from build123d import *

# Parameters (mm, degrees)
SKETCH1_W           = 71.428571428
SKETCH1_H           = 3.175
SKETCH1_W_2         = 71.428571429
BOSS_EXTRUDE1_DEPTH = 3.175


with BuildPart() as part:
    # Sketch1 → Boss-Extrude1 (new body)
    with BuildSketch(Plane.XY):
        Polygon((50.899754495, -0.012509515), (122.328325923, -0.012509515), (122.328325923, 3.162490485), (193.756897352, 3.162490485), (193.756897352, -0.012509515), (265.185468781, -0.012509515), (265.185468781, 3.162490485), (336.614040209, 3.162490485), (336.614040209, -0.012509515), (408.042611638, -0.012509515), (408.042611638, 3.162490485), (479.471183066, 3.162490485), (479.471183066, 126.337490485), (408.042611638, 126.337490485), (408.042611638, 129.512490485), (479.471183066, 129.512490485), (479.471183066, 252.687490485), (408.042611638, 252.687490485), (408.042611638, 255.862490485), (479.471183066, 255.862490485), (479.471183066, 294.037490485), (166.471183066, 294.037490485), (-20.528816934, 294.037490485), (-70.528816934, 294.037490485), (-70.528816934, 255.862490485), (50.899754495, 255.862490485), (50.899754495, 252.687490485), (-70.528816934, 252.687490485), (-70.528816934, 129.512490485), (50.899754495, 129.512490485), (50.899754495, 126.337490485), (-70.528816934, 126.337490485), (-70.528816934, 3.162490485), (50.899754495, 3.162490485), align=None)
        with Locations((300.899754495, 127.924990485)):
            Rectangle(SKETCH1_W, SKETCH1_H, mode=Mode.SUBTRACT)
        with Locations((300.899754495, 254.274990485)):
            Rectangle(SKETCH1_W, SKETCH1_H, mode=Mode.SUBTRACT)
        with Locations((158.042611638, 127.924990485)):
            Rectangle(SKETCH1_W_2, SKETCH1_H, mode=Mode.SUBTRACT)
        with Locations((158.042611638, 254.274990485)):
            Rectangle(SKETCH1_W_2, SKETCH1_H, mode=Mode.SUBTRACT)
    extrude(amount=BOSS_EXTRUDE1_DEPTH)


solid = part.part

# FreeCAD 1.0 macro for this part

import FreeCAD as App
import Part
import Sketcher
from FreeCAD import Vector
Q = App.Units.Quantity

doc = App.newDocument("Part")
params = doc.addObject("Spreadsheet::Sheet", "Params")
for row, (alias, value) in enumerate([
    ("sketch1_width", "550 mm"),
    ("pad1_length", "3.175 mm"),
], start=1):
    params.set(f"A{row}", alias)
    params.set(f"B{row}", "=" + value)
    params.setAlias(f"B{row}", alias)

body = doc.addObject("PartDesign::Body", "Body")

# Sketch on XY plane
sketch1 = body.newObject("Sketcher::SketchObject", "Sketch")
sketch1.AttachmentSupport = (doc.getObject("XY_Plane"), [""])
sketch1.MapMode = "FlatFace"
sketch1.addGeometry([
    Part.LineSegment(Vector(50.899754, -0.01251, 0), Vector(122.328326, -0.01251, 0)),  # 0
    Part.LineSegment(Vector(122.328326, -0.01251, 0), Vector(122.328326, 3.16249, 0)),  # 1
    Part.LineSegment(Vector(122.328326, 3.16249, 0), Vector(193.756897, 3.16249, 0)),  # 2
    Part.LineSegment(Vector(193.756897, 3.16249, 0), Vector(193.756897, -0.01251, 0)),  # 3
    Part.LineSegment(Vector(193.756897, -0.01251, 0), Vector(265.185469, -0.01251, 0)),  # 4
    Part.LineSegment(Vector(265.185469, -0.01251, 0), Vector(265.185469, 3.16249, 0)),  # 5
    Part.LineSegment(Vector(265.185469, 3.16249, 0), Vector(336.61404, 3.16249, 0)),  # 6
    Part.LineSegment(Vector(336.61404, 3.16249, 0), Vector(336.61404, -0.01251, 0)),  # 7
    Part.LineSegment(Vector(336.61404, -0.01251, 0), Vector(408.042612, -0.01251, 0)),  # 8
    Part.LineSegment(Vector(408.042612, -0.01251, 0), Vector(408.042612, 3.16249, 0)),  # 9
    Part.LineSegment(Vector(408.042612, 3.16249, 0), Vector(479.471183, 3.16249, 0)),  # 10
    Part.LineSegment(Vector(479.471183, 3.16249, 0), Vector(479.471183, 126.33749, 0)),  # 11
    Part.LineSegment(Vector(479.471183, 126.33749, 0), Vector(408.042612, 126.33749, 0)),  # 12
    Part.LineSegment(Vector(408.042612, 126.33749, 0), Vector(408.042612, 129.51249, 0)),  # 13
    Part.LineSegment(Vector(408.042612, 129.51249, 0), Vector(479.471183, 129.51249, 0)),  # 14
    Part.LineSegment(Vector(479.471183, 129.51249, 0), Vector(479.471183, 252.68749, 0)),  # 15
    Part.LineSegment(Vector(479.471183, 252.68749, 0), Vector(408.042612, 252.68749, 0)),  # 16
    Part.LineSegment(Vector(408.042612, 252.68749, 0), Vector(408.042612, 255.86249, 0)),  # 17
    Part.LineSegment(Vector(408.042612, 255.86249, 0), Vector(479.471183, 255.86249, 0)),  # 18
    Part.LineSegment(Vector(479.471183, 255.86249, 0), Vector(479.471183, 294.03749, 0)),  # 19
    Part.LineSegment(Vector(479.471183, 294.03749, 0), Vector(-70.528817, 294.03749, 0)),  # 20
    Part.LineSegment(Vector(-70.528817, 294.03749, 0), Vector(-70.528817, 255.86249, 0)),  # 21
    Part.LineSegment(Vector(-70.528817, 255.86249, 0), Vector(50.899754, 255.86249, 0)),  # 22
    Part.LineSegment(Vector(50.899754, 255.86249, 0), Vector(50.899754, 252.68749, 0)),  # 23
    Part.LineSegment(Vector(50.899754, 252.68749, 0), Vector(-70.528817, 252.68749, 0)),  # 24
    Part.LineSegment(Vector(-70.528817, 252.68749, 0), Vector(-70.528817, 129.51249, 0)),  # 25
    Part.LineSegment(Vector(-70.528817, 129.51249, 0), Vector(50.899754, 129.51249, 0)),  # 26
    Part.LineSegment(Vector(50.899754, 129.51249, 0), Vector(50.899754, 126.33749, 0)),  # 27
    Part.LineSegment(Vector(50.899754, 126.33749, 0), Vector(-70.528817, 126.33749, 0)),  # 28
    Part.LineSegment(Vector(-70.528817, 126.33749, 0), Vector(-70.528817, 3.16249, 0)),  # 29
    Part.LineSegment(Vector(-70.528817, 3.16249, 0), Vector(50.899754, 3.16249, 0)),  # 30
    Part.LineSegment(Vector(50.899754, 3.16249, 0), Vector(50.899754, -0.01251, 0)),  # 31
    Part.LineSegment(Vector(193.756897, 126.33749, 0), Vector(122.328326, 126.33749, 0)),  # 32
    Part.LineSegment(Vector(122.328326, 126.33749, 0), Vector(122.328326, 129.51249, 0)),  # 33
    Part.LineSegment(Vector(122.328326, 129.51249, 0), Vector(193.756897, 129.51249, 0)),  # 34
    Part.LineSegment(Vector(193.756897, 129.51249, 0), Vector(193.756897, 126.33749, 0)),  # 35
    Part.LineSegment(Vector(336.61404, 126.33749, 0), Vector(265.185469, 126.33749, 0)),  # 36
    Part.LineSegment(Vector(265.185469, 126.33749, 0), Vector(265.185469, 129.51249, 0)),  # 37
    Part.LineSegment(Vector(265.185469, 129.51249, 0), Vector(336.61404, 129.51249, 0)),  # 38
    Part.LineSegment(Vector(336.61404, 129.51249, 0), Vector(336.61404, 126.33749, 0)),  # 39
    Part.LineSegment(Vector(193.756897, 252.68749, 0), Vector(122.328326, 252.68749, 0)),  # 40
    Part.LineSegment(Vector(122.328326, 252.68749, 0), Vector(122.328326, 255.86249, 0)),  # 41
    Part.LineSegment(Vector(122.328326, 255.86249, 0), Vector(193.756897, 255.86249, 0)),  # 42
    Part.LineSegment(Vector(193.756897, 255.86249, 0), Vector(193.756897, 252.68749, 0)),  # 43
    Part.LineSegment(Vector(336.61404, 252.68749, 0), Vector(265.185469, 252.68749, 0)),  # 44
    Part.LineSegment(Vector(265.185469, 252.68749, 0), Vector(265.185469, 255.86249, 0)),  # 45
    Part.LineSegment(Vector(265.185469, 255.86249, 0), Vector(336.61404, 255.86249, 0)),  # 46
    Part.LineSegment(Vector(336.61404, 255.86249, 0), Vector(336.61404, 252.68749, 0)),  # 47
], False)
sketch1.addConstraint([
    Sketcher.Constraint("Coincident", 0, 2, 1, 1),
    Sketcher.Constraint("Coincident", 1, 2, 2, 1),
    Sketcher.Constraint("Coincident", 2, 2, 3, 1),
    Sketcher.Constraint("Coincident", 3, 2, 4, 1),
    Sketcher.Constraint("Coincident", 4, 2, 5, 1),
    Sketcher.Constraint("Coincident", 5, 2, 6, 1),
    Sketcher.Constraint("Coincident", 6, 2, 7, 1),
    Sketcher.Constraint("Coincident", 7, 2, 8, 1),
    Sketcher.Constraint("Coincident", 8, 2, 9, 1),
    Sketcher.Constraint("Coincident", 9, 2, 10, 1),
    Sketcher.Constraint("Coincident", 10, 2, 11, 1),
    Sketcher.Constraint("Coincident", 11, 2, 12, 1),
    Sketcher.Constraint("Coincident", 12, 2, 13, 1),
    Sketcher.Constraint("Coincident", 13, 2, 14, 1),
    Sketcher.Constraint("Coincident", 14, 2, 15, 1),
    Sketcher.Constraint("Coincident", 15, 2, 16, 1),
    Sketcher.Constraint("Coincident", 16, 2, 17, 1),
    Sketcher.Constraint("Coincident", 17, 2, 18, 1),
    Sketcher.Constraint("Coincident", 18, 2, 19, 1),
    Sketcher.Constraint("Coincident", 19, 2, 20, 1),
    Sketcher.Constraint("Coincident", 20, 2, 21, 1),
    Sketcher.Constraint("Coincident", 21, 2, 22, 1),
    Sketcher.Constraint("Coincident", 22, 2, 23, 1),
    Sketcher.Constraint("Coincident", 23, 2, 24, 1),
    Sketcher.Constraint("Coincident", 24, 2, 25, 1),
    Sketcher.Constraint("Coincident", 25, 2, 26, 1),
    Sketcher.Constraint("Coincident", 26, 2, 27, 1),
    Sketcher.Constraint("Coincident", 27, 2, 28, 1),
    Sketcher.Constraint("Coincident", 28, 2, 29, 1),
    Sketcher.Constraint("Coincident", 29, 2, 30, 1),
    Sketcher.Constraint("Coincident", 30, 2, 31, 1),
    Sketcher.Constraint("Coincident", 31, 2, 0, 1),
    Sketcher.Constraint("Coincident", 32, 2, 33, 1),
    Sketcher.Constraint("Coincident", 33, 2, 34, 1),
    Sketcher.Constraint("Coincident", 34, 2, 35, 1),
    Sketcher.Constraint("Coincident", 35, 2, 32, 1),
    Sketcher.Constraint("Coincident", 36, 2, 37, 1),
    Sketcher.Constraint("Coincident", 37, 2, 38, 1),
    Sketcher.Constraint("Coincident", 38, 2, 39, 1),
    Sketcher.Constraint("Coincident", 39, 2, 36, 1),
    Sketcher.Constraint("Coincident", 40, 2, 41, 1),
    Sketcher.Constraint("Coincident", 41, 2, 42, 1),
    Sketcher.Constraint("Coincident", 42, 2, 43, 1),
    Sketcher.Constraint("Coincident", 43, 2, 40, 1),
    Sketcher.Constraint("Coincident", 44, 2, 45, 1),
    Sketcher.Constraint("Coincident", 45, 2, 46, 1),
    Sketcher.Constraint("Coincident", 46, 2, 47, 1),
    Sketcher.Constraint("Coincident", 47, 2, 44, 1),
    Sketcher.Constraint("Horizontal", 0),
    Sketcher.Constraint("Vertical", 1),
    Sketcher.Constraint("Horizontal", 2),
    Sketcher.Constraint("Vertical", 3),
    Sketcher.Constraint("Horizontal", 4),
    Sketcher.Constraint("Vertical", 5),
    Sketcher.Constraint("Horizontal", 6),
    Sketcher.Constraint("Vertical", 7),
    Sketcher.Constraint("Horizontal", 8),
    Sketcher.Constraint("Vertical", 9),
    Sketcher.Constraint("Horizontal", 10),
    Sketcher.Constraint("Vertical", 11),
    Sketcher.Constraint("Horizontal", 12),
    Sketcher.Constraint("Vertical", 13),
    Sketcher.Constraint("Horizontal", 14),
    Sketcher.Constraint("Vertical", 15),
    Sketcher.Constraint("Horizontal", 16),
    Sketcher.Constraint("Vertical", 17),
    Sketcher.Constraint("Horizontal", 18),
    Sketcher.Constraint("Vertical", 19),
    Sketcher.Constraint("Horizontal", 20),
    Sketcher.Constraint("Vertical", 21),
    Sketcher.Constraint("Horizontal", 22),
    Sketcher.Constraint("Vertical", 23),
    Sketcher.Constraint("Horizontal", 24),
    Sketcher.Constraint("Vertical", 25),
    Sketcher.Constraint("Horizontal", 26),
    Sketcher.Constraint("Vertical", 27),
    Sketcher.Constraint("Horizontal", 28),
    Sketcher.Constraint("Vertical", 29),
    Sketcher.Constraint("Horizontal", 30),
    Sketcher.Constraint("Vertical", 31),
    Sketcher.Constraint("Horizontal", 32),
    Sketcher.Constraint("Vertical", 33),
    Sketcher.Constraint("Horizontal", 34),
    Sketcher.Constraint("Vertical", 35),
    Sketcher.Constraint("Horizontal", 36),
    Sketcher.Constraint("Vertical", 37),
    Sketcher.Constraint("Horizontal", 38),
    Sketcher.Constraint("Vertical", 39),
    Sketcher.Constraint("Horizontal", 40),
    Sketcher.Constraint("Vertical", 41),
    Sketcher.Constraint("Horizontal", 42),
    Sketcher.Constraint("Vertical", 43),
    Sketcher.Constraint("Horizontal", 44),
    Sketcher.Constraint("Vertical", 45),
    Sketcher.Constraint("Horizontal", 46),
    Sketcher.Constraint("Vertical", 47),
    Sketcher.Constraint("Horizontal", 0, 2, 3, 2),
    Sketcher.Constraint("Horizontal", 2, 2, 5, 2),
    Sketcher.Constraint("Horizontal", 4, 2, 7, 2),
    Sketcher.Constraint("Horizontal", 6, 2, 9, 2),
    Sketcher.Constraint("Horizontal", 18, 2, 21, 2),
    Sketcher.Constraint("Horizontal", 16, 2, 23, 2),
    Sketcher.Constraint("Horizontal", 14, 2, 25, 2),
    Sketcher.Constraint("Horizontal", 12, 2, 27, 2),
    Sketcher.Constraint("Horizontal", 10, 2, 29, 2),
    Sketcher.Constraint("Horizontal", 28, 2, 32, 2),
    Sketcher.Constraint("Horizontal", 26, 2, 33, 2),
    Sketcher.Constraint("Horizontal", 35, 2, 36, 2),
    Sketcher.Constraint("Horizontal", 34, 2, 37, 2),
    Sketcher.Constraint("Horizontal", 24, 2, 40, 2),
    Sketcher.Constraint("Horizontal", 22, 2, 41, 2),
    Sketcher.Constraint("Horizontal", 43, 2, 44, 2),
    Sketcher.Constraint("Horizontal", 42, 2, 45, 2),
    Sketcher.Constraint("Vertical", 9, 2, 12, 2),
    Sketcher.Constraint("Vertical", 11, 2, 14, 2),
    Sketcher.Constraint("Vertical", 13, 2, 16, 2),
    Sketcher.Constraint("Vertical", 15, 2, 18, 2),
    Sketcher.Constraint("Vertical", 21, 2, 24, 2),
    Sketcher.Constraint("Vertical", 23, 2, 26, 2),
    Sketcher.Constraint("Vertical", 25, 2, 28, 2),
    Sketcher.Constraint("Vertical", 27, 2, 30, 2),
    Sketcher.Constraint("Vertical", 1, 2, 32, 2),
    Sketcher.Constraint("Vertical", 3, 2, 34, 2),
    Sketcher.Constraint("Vertical", 5, 2, 36, 2),
    Sketcher.Constraint("Vertical", 7, 2, 38, 2),
    Sketcher.Constraint("Vertical", 33, 2, 40, 2),
    Sketcher.Constraint("Vertical", 35, 2, 42, 2),
    Sketcher.Constraint("Vertical", 37, 2, 44, 2),
    Sketcher.Constraint("Vertical", 39, 2, 46, 2),
    Sketcher.Constraint("Equal", 0, 2),
    Sketcher.Constraint("Equal", 2, 4),
    Sketcher.Constraint("Equal", 4, 6),
    Sketcher.Constraint("Equal", 6, 8),
    Sketcher.Constraint("Equal", 8, 10),
    Sketcher.Constraint("Equal", 9, 13),
    Sketcher.Constraint("Equal", 11, 15),
    Sketcher.Constraint("Equal", 13, 17),
    Sketcher.Constraint("DistanceX", 20, 2, 20, 1, Q("550 mm")),
    Sketcher.Constraint("DistanceY", 1, 2, 21, 2, Q("252.7 mm")),
    Sketcher.Constraint("DistanceY", 1, 1, 1, 2, Q("3.175 mm")),
    Sketcher.Constraint("DistanceY", 19, 1, 19, 2, Q("38.175 mm")),
    Sketcher.Constraint("DistanceX", 0, 1, 0, 2, Q("71.428571 mm")),
    Sketcher.Constraint("DistanceY", 0, 2, -1, 1, Q("0.01251 mm")),
    Sketcher.Constraint("DistanceX", -1, 1, 4, 2, Q("265.185469 mm")),
])
sketch1.setExpression("Constraints[137]", "Params.sketch1_width")
pad1 = body.newObject("PartDesign::Pad", "Pad")
pad1.Profile = sketch1
pad1.setExpression("Length", "Params.pad1_length")

doc.recompute()
